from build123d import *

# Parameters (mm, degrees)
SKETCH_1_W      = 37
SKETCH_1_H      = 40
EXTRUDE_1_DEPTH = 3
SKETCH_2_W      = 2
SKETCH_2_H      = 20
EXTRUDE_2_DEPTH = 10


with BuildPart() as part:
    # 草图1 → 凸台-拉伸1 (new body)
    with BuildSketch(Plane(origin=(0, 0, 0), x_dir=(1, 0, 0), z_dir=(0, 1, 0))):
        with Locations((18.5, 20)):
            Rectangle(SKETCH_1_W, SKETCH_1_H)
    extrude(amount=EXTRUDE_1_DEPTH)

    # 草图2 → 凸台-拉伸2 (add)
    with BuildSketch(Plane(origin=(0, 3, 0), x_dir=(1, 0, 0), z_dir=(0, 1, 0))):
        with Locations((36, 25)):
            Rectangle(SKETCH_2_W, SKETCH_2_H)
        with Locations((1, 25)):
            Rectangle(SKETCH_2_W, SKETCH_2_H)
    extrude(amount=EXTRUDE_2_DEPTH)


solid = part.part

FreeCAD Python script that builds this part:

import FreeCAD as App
import Part
import Sketcher


def add_polygon(sketch, points):
    """Adds a closed chain of lines whose ends are joined by coincident constraints."""
    first, n = sketch.GeometryCount, len(points)
    for a, b in zip(points, points[1:] + points[:1]):
        sketch.addGeometry(Part.LineSegment(App.Vector(*a, 0), App.Vector(*b, 0)), False)
    for i in range(n):
        sketch.addConstraint(Sketcher.Constraint("Coincident", first + i, 2, first + (i + 1) % n, 1))

doc = App.newDocument("Part")
body = doc.addObject("PartDesign::Body", "Body")

# Sketch on XZ plane
sketch1 = body.newObject("Sketcher::SketchObject", "Sketch")
sketch1.AttachmentSupport = (doc.getObject("XZ_Plane"), [""])
sketch1.MapMode = "FlatFace"
add_polygon(sketch1, [(0, -40), (0, 0), (37, 0), (37, -40)])  # lines 0-3
sketch1.addConstraint(Sketcher.Constraint("Vertical", 0))
sketch1.addConstraint(Sketcher.Constraint("Horizontal", 1))
sketch1.addConstraint(Sketcher.Constraint("Vertical", 2))
sketch1.addConstraint(Sketcher.Constraint("Horizontal", 3))
sketch1.addConstraint(Sketcher.Constraint("Coincident", 0, 2, -1, 1))
sketch1.addConstraint(Sketcher.Constraint("DistanceX", 1, 1, 1, 2, 37.0))
sketch1.addConstraint(Sketcher.Constraint("DistanceY", 0, 1, 0, 2, 40.0))
pad1 = body.newObject("PartDesign::Pad", "Pad")
pad1.Profile = sketch1
pad1.Length = 3
pad1.Reversed = True

# Sketch on XZ plane
sketch2 = body.newObject("Sketcher::SketchObject", "Sketch001")
sketch2.AttachmentSupport = (doc.getObject("XZ_Plane"), [""])
sketch2.MapMode = "FlatFace"
sketch2.AttachmentOffset = App.Placement(App.Vector(0, 0, -3), App.Rotation())
add_polygon(sketch2, [(35, -35), (35, -15), (37, -15), (37, -35)])  # lines 0-3
add_polygon(sketch2, [(0, -35), (0, -15), (2, -15), (2, -35)])  # lines 4-7
sketch2.addConstraint(Sketcher.Constraint("Vertical", 0))
sketch2.addConstraint(Sketcher.Constraint("Horizontal", 1))
sketch2.addConstraint(Sketcher.Constraint("Vertical", 2))
sketch2.addConstraint(Sketcher.Constraint("Horizontal", 3))
sketch2.addConstraint(Sketcher.Constraint("Vertical", 4))
sketch2.addConstraint(Sketcher.Constraint("Horizontal", 5))
sketch2.addConstraint(Sketcher.Constraint("Vertical", 6))
sketch2.addConstraint(Sketcher.Constraint("Horizontal", 7))
sketch2.addConstraint(Sketcher.Constraint("PointOnObject", 4, 2, -2))
sketch2.addConstraint(Sketcher.Constraint("Horizontal", 1, 2, 4, 2))
sketch2.addConstraint(Sketcher.Constraint("Horizontal", 3, 2, 6, 2))
sketch2.addConstraint(Sketcher.Constraint("Equal", 3, 5))
sketch2.addConstraint(Sketcher.Constraint("DistanceX", 1, 1, 1, 2, 2.0))
sketch2.addConstraint(Sketcher.Constraint("DistanceY", 0, 1, 0, 2, 20.0))
sketch2.addConstraint(Sketcher.Constraint("DistanceX", -1, 1, 0, 2, 35.0))
sketch2.addConstraint(Sketcher.Constraint("DistanceY", 0, 2, -1, 1, 15.0))
pad2 = body.newObject("PartDesign::Pad", "Pad001")
pad2.Profile = sketch2
pad2.Length = 10
pad2.Reversed = True

doc.recompute()
